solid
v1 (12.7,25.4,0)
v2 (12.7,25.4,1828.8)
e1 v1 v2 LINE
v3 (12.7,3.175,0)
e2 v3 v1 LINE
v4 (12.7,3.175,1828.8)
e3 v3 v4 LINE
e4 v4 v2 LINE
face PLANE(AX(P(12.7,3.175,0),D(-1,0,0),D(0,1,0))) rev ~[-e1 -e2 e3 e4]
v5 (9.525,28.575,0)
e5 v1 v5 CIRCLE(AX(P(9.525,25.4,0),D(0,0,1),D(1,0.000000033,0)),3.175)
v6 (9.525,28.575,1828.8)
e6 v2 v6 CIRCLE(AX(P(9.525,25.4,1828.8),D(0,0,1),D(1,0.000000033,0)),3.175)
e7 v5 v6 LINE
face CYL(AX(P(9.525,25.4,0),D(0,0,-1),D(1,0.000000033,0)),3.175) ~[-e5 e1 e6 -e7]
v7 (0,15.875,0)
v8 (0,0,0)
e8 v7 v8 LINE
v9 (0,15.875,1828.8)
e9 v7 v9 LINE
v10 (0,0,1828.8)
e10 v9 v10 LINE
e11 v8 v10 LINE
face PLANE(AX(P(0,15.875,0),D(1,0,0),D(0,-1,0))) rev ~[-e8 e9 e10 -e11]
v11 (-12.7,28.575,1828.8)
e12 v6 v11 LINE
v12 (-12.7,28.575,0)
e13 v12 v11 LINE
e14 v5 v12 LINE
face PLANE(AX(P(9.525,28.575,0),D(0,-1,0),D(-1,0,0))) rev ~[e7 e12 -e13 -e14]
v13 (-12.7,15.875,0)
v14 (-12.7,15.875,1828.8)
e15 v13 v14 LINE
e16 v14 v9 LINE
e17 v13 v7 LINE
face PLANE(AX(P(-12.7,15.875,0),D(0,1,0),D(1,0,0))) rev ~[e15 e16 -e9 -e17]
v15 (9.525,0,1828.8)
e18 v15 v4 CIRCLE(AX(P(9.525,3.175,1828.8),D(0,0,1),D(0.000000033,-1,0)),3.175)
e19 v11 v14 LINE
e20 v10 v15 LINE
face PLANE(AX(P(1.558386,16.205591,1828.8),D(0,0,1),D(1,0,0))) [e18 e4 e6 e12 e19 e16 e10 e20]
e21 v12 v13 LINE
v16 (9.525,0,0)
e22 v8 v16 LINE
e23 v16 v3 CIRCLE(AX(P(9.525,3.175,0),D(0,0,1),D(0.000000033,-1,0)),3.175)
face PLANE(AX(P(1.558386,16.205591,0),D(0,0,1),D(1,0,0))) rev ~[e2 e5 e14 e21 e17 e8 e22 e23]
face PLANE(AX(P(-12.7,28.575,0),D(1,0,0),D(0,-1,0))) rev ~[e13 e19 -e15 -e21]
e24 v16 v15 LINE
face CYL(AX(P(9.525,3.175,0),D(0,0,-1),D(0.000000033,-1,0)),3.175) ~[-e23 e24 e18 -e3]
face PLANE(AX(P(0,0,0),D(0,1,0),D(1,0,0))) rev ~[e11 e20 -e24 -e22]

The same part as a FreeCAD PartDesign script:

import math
import FreeCAD as App
import Part
import Sketcher
from FreeCAD import Vector
Q = App.Units.Quantity

doc = App.newDocument("Part")
body = doc.addObject("PartDesign::Body", "Body")

# Sketch on XY plane
sketch1 = body.newObject("Sketcher::SketchObject", "Sketch")
sketch1.AttachmentSupport = (doc.getObject("XY_Plane"), [""])
sketch1.MapMode = "FlatFace"
sketch1.addGeometry([
    Part.LineSegment(Vector(0, 15.875, 0), Vector(0, 0, 0)),  # 0
    Part.LineSegment(Vector(0, 0, 0), Vector(9.525, 0, 0)),  # 1
    Part.ArcOfCircle(Part.Circle(Vector(9.525, 3.175, 0), Vector(0, 0, 1), 3.175), math.radians(-89.999998), math.radians(-0.000002)),  # 2
    Part.LineSegment(Vector(12.7, 3.175, 0), Vector(12.7, 25.4, 0)),  # 3
    Part.ArcOfCircle(Part.Circle(Vector(9.525, 25.4, 0), Vector(0, 0, 1), 3.175), math.radians(0.000002), math.radians(89.999998)),  # 4
    Part.LineSegment(Vector(9.525, 28.575, 0), Vector(-12.7, 28.575, 0)),  # 5
    Part.LineSegment(Vector(-12.7, 28.575, 0), Vector(-12.7, 15.875, 0)),  # 6
    Part.LineSegment(Vector(-12.7, 15.875, 0), Vector(0, 15.875, 0)),  # 7
], False)
sketch1.addConstraint([
    Sketcher.Constraint("Coincident", 0, 2, 1, 1),
    Sketcher.Constraint("Tangent", 1, 2, 2, 1),
    Sketcher.Constraint("Tangent", 2, 2, 3, 1),
    Sketcher.Constraint("Tangent", 3, 2, 4, 1),
    Sketcher.Constraint("Tangent", 4, 2, 5, 1),
    Sketcher.Constraint("Coincident", 5, 2, 6, 1),
    Sketcher.Constraint("Coincident", 6, 2, 7, 1),
    Sketcher.Constraint("Coincident", 7, 2, 0, 1),
    Sketcher.Constraint("Vertical", 0),
    Sketcher.Constraint("Horizontal", 1),
    Sketcher.Constraint("Vertical", 3),
    Sketcher.Constraint("Horizontal", 5),
    Sketcher.Constraint("Vertical", 6),
    Sketcher.Constraint("Horizontal", 7),
    Sketcher.Constraint("Coincident", 0, 2, -1, 1),
    Sketcher.Constraint("Equal", 2, 4),
    Sketcher.Constraint("Equal", 5, 3),
    Sketcher.Constraint("Equal", 7, 6),
    Sketcher.Constraint("DistanceX", 7, 1, 7, 2, Q("0.5 in")),
    Sketcher.Constraint("DistanceY", -1, 1, 4, 3, Q("1 in")),
    Sketcher.Constraint("Radius", 2, Q("0.125 in")),
])
pad1 = body.newObject("PartDesign::Pad", "Pad")
pad1.Profile = sketch1
pad1.Length = Q("72 in")

doc.recompute()
